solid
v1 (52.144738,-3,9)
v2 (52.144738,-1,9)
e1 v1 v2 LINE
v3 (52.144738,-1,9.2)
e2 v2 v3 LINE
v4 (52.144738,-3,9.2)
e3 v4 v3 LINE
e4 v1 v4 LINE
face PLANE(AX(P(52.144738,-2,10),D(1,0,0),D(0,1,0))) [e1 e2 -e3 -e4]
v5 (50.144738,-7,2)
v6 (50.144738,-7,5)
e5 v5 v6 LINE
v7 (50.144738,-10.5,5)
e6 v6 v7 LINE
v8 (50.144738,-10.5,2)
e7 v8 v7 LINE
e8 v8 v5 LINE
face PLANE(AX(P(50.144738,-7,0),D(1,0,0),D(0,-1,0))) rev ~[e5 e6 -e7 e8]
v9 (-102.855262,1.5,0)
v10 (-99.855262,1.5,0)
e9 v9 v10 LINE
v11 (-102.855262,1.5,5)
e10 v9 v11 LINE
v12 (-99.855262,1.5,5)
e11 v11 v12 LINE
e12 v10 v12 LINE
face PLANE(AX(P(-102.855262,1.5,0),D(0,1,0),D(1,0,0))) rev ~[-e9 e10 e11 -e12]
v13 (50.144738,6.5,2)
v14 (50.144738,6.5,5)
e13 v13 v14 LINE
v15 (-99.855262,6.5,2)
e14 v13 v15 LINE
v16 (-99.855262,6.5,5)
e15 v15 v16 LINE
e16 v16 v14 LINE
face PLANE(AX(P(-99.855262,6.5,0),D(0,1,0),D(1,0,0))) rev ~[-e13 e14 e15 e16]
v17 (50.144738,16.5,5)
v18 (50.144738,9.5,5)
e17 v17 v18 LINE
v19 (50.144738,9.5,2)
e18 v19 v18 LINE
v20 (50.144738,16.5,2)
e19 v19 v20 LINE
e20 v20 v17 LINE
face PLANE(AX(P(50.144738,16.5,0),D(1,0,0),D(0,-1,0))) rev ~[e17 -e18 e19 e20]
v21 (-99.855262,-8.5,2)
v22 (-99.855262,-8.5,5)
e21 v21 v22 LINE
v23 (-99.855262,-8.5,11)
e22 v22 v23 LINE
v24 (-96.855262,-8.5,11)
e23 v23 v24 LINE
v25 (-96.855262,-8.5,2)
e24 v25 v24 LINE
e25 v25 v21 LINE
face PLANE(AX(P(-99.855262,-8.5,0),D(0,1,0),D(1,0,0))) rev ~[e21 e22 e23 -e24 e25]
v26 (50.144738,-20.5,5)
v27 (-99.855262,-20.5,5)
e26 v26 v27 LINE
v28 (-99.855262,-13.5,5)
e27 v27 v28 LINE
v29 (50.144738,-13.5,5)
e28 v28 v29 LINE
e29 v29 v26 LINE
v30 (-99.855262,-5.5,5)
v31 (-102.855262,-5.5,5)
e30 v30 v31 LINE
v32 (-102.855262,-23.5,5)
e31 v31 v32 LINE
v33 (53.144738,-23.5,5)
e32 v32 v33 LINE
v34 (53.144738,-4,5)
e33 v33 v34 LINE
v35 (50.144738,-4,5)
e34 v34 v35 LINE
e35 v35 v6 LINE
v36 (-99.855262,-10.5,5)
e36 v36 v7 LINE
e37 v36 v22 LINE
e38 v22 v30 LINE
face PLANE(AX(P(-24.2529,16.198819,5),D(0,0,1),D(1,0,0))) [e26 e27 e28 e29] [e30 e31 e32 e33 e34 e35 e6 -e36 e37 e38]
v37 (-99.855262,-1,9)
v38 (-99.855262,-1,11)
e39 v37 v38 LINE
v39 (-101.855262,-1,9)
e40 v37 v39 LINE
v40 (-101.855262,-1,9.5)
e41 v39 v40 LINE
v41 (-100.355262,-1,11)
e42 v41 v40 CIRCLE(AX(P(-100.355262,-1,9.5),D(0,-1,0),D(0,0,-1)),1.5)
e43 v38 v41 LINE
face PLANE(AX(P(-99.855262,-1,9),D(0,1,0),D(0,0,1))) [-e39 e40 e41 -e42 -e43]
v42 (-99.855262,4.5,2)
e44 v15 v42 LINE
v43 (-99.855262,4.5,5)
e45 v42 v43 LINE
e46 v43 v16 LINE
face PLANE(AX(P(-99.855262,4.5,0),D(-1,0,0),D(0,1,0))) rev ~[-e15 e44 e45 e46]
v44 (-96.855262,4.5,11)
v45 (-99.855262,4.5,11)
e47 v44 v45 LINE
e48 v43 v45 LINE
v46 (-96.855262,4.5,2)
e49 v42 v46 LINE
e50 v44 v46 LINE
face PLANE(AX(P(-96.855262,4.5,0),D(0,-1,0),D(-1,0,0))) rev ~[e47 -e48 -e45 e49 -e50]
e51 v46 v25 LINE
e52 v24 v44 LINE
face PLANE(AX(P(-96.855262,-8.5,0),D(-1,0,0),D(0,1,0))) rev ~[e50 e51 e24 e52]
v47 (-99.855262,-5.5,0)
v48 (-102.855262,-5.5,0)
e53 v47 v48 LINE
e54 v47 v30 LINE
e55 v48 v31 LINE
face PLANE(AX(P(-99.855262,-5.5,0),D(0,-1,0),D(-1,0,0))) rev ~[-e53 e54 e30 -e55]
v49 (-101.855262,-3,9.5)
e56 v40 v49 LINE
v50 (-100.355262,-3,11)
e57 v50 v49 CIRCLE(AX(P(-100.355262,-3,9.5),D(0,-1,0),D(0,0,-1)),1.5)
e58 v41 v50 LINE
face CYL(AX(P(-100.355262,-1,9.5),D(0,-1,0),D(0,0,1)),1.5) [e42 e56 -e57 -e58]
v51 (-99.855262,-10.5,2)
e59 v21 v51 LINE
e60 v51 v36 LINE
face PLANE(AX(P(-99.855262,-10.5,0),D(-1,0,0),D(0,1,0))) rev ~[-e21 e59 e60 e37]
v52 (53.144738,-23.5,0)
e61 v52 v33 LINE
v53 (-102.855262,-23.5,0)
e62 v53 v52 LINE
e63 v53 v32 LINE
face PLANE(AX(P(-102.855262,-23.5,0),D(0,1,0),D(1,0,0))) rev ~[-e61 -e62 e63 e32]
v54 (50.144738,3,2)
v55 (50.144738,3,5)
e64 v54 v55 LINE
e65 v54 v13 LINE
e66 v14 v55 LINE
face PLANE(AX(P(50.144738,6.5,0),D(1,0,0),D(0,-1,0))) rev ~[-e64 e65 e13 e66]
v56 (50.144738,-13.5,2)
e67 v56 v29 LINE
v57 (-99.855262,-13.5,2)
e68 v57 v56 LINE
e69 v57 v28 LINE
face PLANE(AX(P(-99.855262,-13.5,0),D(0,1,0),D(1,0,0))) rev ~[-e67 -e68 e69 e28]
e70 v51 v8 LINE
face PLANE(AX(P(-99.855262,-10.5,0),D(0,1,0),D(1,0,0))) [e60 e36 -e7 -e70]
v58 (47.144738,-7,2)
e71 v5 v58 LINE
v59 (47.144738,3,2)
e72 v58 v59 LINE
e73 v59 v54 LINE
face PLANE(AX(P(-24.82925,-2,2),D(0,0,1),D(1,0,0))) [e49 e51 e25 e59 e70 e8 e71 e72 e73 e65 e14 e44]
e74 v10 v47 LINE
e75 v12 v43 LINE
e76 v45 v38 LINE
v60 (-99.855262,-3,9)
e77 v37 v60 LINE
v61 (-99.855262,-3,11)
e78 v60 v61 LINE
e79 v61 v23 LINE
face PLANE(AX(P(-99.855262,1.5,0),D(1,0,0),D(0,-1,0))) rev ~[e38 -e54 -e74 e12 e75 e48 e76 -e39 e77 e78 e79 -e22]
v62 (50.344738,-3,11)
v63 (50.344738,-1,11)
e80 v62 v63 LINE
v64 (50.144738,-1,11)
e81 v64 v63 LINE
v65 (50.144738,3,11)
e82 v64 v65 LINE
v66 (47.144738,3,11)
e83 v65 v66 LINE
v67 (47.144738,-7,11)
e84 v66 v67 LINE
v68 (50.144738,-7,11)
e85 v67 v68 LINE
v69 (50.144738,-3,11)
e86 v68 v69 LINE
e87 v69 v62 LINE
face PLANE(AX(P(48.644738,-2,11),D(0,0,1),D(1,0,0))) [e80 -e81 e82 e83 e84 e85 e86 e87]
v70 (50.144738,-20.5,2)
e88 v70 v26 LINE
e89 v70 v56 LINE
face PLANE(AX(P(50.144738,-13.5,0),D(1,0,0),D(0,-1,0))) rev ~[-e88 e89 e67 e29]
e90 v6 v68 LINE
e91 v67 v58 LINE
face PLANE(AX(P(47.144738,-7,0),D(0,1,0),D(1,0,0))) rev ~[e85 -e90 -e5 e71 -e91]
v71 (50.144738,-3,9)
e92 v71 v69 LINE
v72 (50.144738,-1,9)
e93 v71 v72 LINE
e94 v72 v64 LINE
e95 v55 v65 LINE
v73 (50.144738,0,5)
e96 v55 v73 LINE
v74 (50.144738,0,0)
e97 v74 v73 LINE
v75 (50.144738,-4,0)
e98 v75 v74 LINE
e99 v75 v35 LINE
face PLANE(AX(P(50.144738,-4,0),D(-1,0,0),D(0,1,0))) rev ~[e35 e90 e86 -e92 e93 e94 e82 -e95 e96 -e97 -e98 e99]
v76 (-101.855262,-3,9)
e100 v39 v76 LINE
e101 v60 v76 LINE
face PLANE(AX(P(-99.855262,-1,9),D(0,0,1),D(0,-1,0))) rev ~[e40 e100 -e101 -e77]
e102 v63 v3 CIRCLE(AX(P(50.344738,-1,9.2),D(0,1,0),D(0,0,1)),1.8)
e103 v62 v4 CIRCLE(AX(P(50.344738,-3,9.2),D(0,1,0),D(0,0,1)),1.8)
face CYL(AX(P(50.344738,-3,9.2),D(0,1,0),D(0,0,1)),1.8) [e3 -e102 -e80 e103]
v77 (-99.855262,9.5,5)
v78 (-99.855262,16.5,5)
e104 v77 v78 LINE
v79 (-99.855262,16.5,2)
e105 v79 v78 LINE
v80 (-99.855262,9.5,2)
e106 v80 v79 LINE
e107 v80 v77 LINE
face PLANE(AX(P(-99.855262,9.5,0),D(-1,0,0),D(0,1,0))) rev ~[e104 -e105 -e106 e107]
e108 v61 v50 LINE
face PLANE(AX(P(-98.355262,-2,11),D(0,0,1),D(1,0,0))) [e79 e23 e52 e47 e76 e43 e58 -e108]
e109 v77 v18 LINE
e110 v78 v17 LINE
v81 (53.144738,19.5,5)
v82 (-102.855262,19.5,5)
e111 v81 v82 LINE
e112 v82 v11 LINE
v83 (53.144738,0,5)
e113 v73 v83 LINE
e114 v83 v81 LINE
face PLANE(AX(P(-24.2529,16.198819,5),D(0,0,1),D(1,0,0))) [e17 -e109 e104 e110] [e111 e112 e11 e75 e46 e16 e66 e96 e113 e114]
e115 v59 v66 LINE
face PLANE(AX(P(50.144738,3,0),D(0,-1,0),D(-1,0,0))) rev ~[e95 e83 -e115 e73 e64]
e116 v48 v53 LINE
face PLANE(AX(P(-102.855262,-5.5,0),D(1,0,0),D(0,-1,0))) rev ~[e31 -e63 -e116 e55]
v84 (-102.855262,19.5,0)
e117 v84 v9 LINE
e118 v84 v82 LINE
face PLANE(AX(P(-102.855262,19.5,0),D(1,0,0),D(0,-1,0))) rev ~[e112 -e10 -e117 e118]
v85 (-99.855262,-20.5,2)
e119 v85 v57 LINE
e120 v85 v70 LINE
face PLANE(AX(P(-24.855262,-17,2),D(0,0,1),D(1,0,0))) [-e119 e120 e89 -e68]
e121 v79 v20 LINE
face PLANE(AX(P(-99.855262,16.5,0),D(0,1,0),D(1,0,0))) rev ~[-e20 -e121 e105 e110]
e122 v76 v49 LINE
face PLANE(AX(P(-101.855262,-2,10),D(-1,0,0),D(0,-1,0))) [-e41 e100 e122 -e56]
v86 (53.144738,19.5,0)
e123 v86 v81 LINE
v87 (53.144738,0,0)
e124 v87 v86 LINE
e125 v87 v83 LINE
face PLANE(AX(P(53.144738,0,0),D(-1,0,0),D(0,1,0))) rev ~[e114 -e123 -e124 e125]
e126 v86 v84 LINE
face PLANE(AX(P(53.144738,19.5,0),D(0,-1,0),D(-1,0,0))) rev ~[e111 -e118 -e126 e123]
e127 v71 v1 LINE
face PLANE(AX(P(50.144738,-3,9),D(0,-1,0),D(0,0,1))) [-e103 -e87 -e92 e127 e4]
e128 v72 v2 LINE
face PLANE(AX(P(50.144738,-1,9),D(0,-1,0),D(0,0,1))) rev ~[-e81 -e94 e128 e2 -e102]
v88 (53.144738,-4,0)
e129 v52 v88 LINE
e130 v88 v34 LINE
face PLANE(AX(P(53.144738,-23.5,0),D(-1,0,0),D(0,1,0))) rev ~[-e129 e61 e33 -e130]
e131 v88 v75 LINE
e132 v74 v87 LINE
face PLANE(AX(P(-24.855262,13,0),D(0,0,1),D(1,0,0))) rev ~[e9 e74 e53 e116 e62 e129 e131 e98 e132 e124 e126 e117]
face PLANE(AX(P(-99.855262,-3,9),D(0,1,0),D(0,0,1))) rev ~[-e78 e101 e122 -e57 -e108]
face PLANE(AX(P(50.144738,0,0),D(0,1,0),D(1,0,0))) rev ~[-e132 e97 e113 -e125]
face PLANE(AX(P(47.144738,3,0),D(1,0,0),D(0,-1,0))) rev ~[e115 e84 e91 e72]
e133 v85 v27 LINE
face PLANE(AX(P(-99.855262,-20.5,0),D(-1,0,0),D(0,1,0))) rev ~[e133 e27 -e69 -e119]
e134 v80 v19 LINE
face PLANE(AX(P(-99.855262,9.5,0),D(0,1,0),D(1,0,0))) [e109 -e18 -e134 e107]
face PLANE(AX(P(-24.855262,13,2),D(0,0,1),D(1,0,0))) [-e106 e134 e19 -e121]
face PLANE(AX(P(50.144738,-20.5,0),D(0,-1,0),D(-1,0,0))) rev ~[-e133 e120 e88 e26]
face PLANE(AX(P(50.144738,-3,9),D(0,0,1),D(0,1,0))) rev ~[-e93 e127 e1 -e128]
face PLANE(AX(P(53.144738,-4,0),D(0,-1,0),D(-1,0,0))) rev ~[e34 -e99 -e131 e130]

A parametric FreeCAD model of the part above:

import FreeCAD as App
import Part
import Sketcher
from FreeCAD import Vector
Q = App.Units.Quantity


def edges_at(feature, points):
    """Names of the edges that pass closest to the given points."""
    edges = feature.Shape.Edges
    near = lambda p: min(range(len(edges)), key=lambda i: edges[i].distToShape(Part.Vertex(*p))[0])
    return sorted({f"Edge{near(p) + 1}" for p in points})


def add_polygon(sketch, points):
    """Adds a closed chain of lines whose ends are joined by coincident constraints."""
    first, n = sketch.GeometryCount, len(points)
    for a, b in zip(points, points[1:] + points[:1]):
        sketch.addGeometry(Part.LineSegment(App.Vector(*a, 0), App.Vector(*b, 0)), False)
    for i in range(n):
        sketch.addConstraint(Sketcher.Constraint("Coincident", first + i, 2, first + (i + 1) % n, 1))

doc = App.newDocument("Part")
body = doc.addObject("PartDesign::Body", "Body")

# Sketch on XY plane
sketch1 = body.newObject("Sketcher::SketchObject", "Sketch")
sketch1.AttachmentSupport = (doc.getObject("XY_Plane"), [""])
sketch1.MapMode = "FlatFace"
add_polygon(sketch1, [(53.1, 19.5), (-102.9, 19.5), (-102.9, 1.5), (-99.9, 1.5), (-99.9, -5.5), (-102.9, -5.5), (-102.9, -23.5), (53.1, -23.5), (53.1, -4), (50.1, -4), (50.1, 0), (53.1, 0)])  # lines 0-11
add_polygon(sketch1, [(50.1, -7), (50.1, -10.5), (-99.9, -10.5), (-99.9, -8.5), (-96.9, -8.5), (-96.9, 4.5), (-99.9, 4.5), (-99.9, 6.5), (50.1, 6.5), (50.1, 3), (47.1, 3), (47.1, -7)])  # lines 12-23
add_polygon(sketch1, [(-99.9, 9.5), (-99.9, 16.5), (50.1, 16.5), (50.1, 9.5)])  # lines 24-27
add_polygon(sketch1, [(50.1, -13.5), (50.1, -20.5), (-99.9, -20.5), (-99.9, -13.5)])  # lines 28-31
sketch1.addConstraint([
    Sketcher.Constraint("Horizontal", 0),
    Sketcher.Constraint("Vertical", 1),
    Sketcher.Constraint("Horizontal", 2),
    Sketcher.Constraint("Vertical", 3),
    Sketcher.Constraint("Horizontal", 4),
    Sketcher.Constraint("Vertical", 5),
    Sketcher.Constraint("Horizontal", 6),
    Sketcher.Constraint("Vertical", 7),
    Sketcher.Constraint("Horizontal", 8),
    Sketcher.Constraint("Vertical", 9),
    Sketcher.Constraint("Horizontal", 10),
    Sketcher.Constraint("Vertical", 11),
    Sketcher.Constraint("Vertical", 12),
    Sketcher.Constraint("Horizontal", 13),
    Sketcher.Constraint("Vertical", 14),
    Sketcher.Constraint("Horizontal", 15),
    Sketcher.Constraint("Vertical", 16),
    Sketcher.Constraint("Horizontal", 17),
    Sketcher.Constraint("Vertical", 18),
    Sketcher.Constraint("Horizontal", 19),
    Sketcher.Constraint("Vertical", 20),
    Sketcher.Constraint("Horizontal", 21),
    Sketcher.Constraint("Vertical", 22),
    Sketcher.Constraint("Horizontal", 23),
    Sketcher.Constraint("Vertical", 24),
    Sketcher.Constraint("Horizontal", 25),
    Sketcher.Constraint("Vertical", 26),
    Sketcher.Constraint("Horizontal", 27),
    Sketcher.Constraint("Vertical", 28),
    Sketcher.Constraint("Horizontal", 29),
    Sketcher.Constraint("Vertical", 30),
    Sketcher.Constraint("Horizontal", 31),
    Sketcher.Constraint("PointOnObject", 9, 2, -1),
    Sketcher.Constraint("Vertical", 1, 2, 4, 2),
    Sketcher.Constraint("Vertical", 7, 2, 10, 2),
    Sketcher.Constraint("Vertical", 9, 2, 12, 2),
    Sketcher.Constraint("Vertical", 3, 2, 13, 2),
    Sketcher.Constraint("Vertical", 14, 2, 17, 2),
    Sketcher.Constraint("Vertical", 12, 2, 19, 2),
    Sketcher.Constraint("Vertical", 18, 2, 24, 2),
    Sketcher.Constraint("Vertical", 23, 2, 25, 2),
    Sketcher.Constraint("Vertical", 26, 2, 28, 2),
    Sketcher.Constraint("Vertical", 27, 2, 29, 2),
    Sketcher.Constraint("Equal", 4, 8),
    Sketcher.Constraint("Equal", 10, 15),
    Sketcher.Constraint("Equal", 17, 21),
    Sketcher.Constraint("Equal", 1, 5),
    Sketcher.Constraint("Equal", 7, 11),
    Sketcher.Constraint("Equal", 14, 18),
    Sketcher.Constraint("Equal", 12, 20),
    Sketcher.Constraint("Equal", 3, 24),
    Sketcher.Constraint("Equal", 26, 28),
    Sketcher.Constraint("DistanceX", 0, 2, 0, 1, Q("156 mm")),
    Sketcher.Constraint("DistanceX", 2, 1, 2, 2, Q("3 mm")),
    Sketcher.Constraint("DistanceY", 1, 2, 1, 1, Q("18 mm")),
    Sketcher.Constraint("DistanceY", 3, 2, 3, 1, Q("7 mm")),
    Sketcher.Constraint("DistanceY", 9, 1, 9, 2, Q("4 mm")),
    Sketcher.Constraint("DistanceY", 14, 1, 14, 2, Q("2 mm")),
    Sketcher.Constraint("DistanceY", 16, 1, 16, 2, Q("13 mm")),
    Sketcher.Constraint("DistanceY", 22, 2, 22, 1, Q("10 mm")),
    Sketcher.Constraint("DistanceY", -1, 1, 20, 2, Q("3 mm")),
    Sketcher.Constraint("DistanceY", 24, 2, 0, 2, Q("3 mm")),
    Sketcher.Constraint("DistanceY", 6, 2, 28, 2, Q("3 mm")),
    Sketcher.Constraint("DistanceX", 0, 2, -1, 1, Q("102.855262 mm")),
])
pad1 = body.newObject("PartDesign::Pad", "Pad")
pad1.Profile = sketch1
pad1.Length = 5

# Sketch on XY plane
sketch2 = body.newObject("Sketcher::SketchObject", "Sketch001")
sketch2.AttachmentSupport = (doc.getObject("XY_Plane"), [""])
sketch2.MapMode = "FlatFace"
add_polygon(sketch2, [(-99.9, 16.5), (-99.9, 9.5), (50.1, 9.5), (50.1, 16.5)])  # lines 0-3
add_polygon(sketch2, [(-99.9, 6.5), (-99.9, 4.5), (-96.9, 4.5), (-96.9, -8.5), (-99.9, -8.5), (-99.9, -10.5), (50.1, -10.5), (50.1, -7), (47.1, -7), (47.1, 3), (50.1, 3), (50.1, 6.5)])  # lines 4-15
add_polygon(sketch2, [(-99.9, -13.5), (-99.9, -20.5), (50.1, -20.5), (50.1, -13.5)])  # lines 16-19
sketch2.addConstraint([
    Sketcher.Constraint("Vertical", 0),
    Sketcher.Constraint("Horizontal", 1),
    Sketcher.Constraint("Vertical", 2),
    Sketcher.Constraint("Horizontal", 3),
    Sketcher.Constraint("Vertical", 4),
    Sketcher.Constraint("Horizontal", 5),
    Sketcher.Constraint("Vertical", 6),
    Sketcher.Constraint("Horizontal", 7),
    Sketcher.Constraint("Vertical", 8),
    Sketcher.Constraint("Horizontal", 9),
    Sketcher.Constraint("Vertical", 10),
    Sketcher.Constraint("Horizontal", 11),
    Sketcher.Constraint("Vertical", 12),
    Sketcher.Constraint("Horizontal", 13),
    Sketcher.Constraint("Vertical", 14),
    Sketcher.Constraint("Horizontal", 15),
    Sketcher.Constraint("Vertical", 16),
    Sketcher.Constraint("Horizontal", 17),
    Sketcher.Constraint("Vertical", 18),
    Sketcher.Constraint("Horizontal", 19),
    Sketcher.Constraint("Vertical", 3, 2, 4, 2),
    Sketcher.Constraint("Vertical", 4, 2, 7, 2),
    Sketcher.Constraint("Vertical", 2, 2, 9, 2),
    Sketcher.Constraint("Vertical", 10, 2, 13, 2),
    Sketcher.Constraint("Vertical", 15, 2, 16, 2),
    Sketcher.Constraint("Vertical", 14, 2, 17, 2),
    Sketcher.Constraint("Equal", 7, 11),
    Sketcher.Constraint("Equal", 4, 8),
    Sketcher.Constraint("Equal", 10, 14),
    Sketcher.Constraint("Equal", 2, 16),
    Sketcher.Constraint("DistanceX", 1, 1, 1, 2, Q("150 mm")),
    Sketcher.Constraint("DistanceX", 5, 1, 5, 2, Q("3 mm")),
    Sketcher.Constraint("DistanceY", 0, 2, 0, 1, Q("7 mm")),
    Sketcher.Constraint("DistanceY", 4, 2, 4, 1, Q("2 mm")),
    Sketcher.Constraint("DistanceY", 6, 2, 6, 1, Q("13 mm")),
    Sketcher.Constraint("DistanceY", 12, 1, 12, 2, Q("10 mm")),
    Sketcher.Constraint("DistanceY", 10, 2, -1, 1, Q("7 mm")),
    Sketcher.Constraint("DistanceY", 4, 2, 0, 2, Q("5 mm")),
    Sketcher.Constraint("DistanceY", 16, 2, 8, 2, Q("10 mm")),
    Sketcher.Constraint("DistanceX", 0, 2, -1, 1, Q("99.855262 mm")),
])
pad2 = body.newObject("PartDesign::Pad", "Pad001")
pad2.Profile = sketch2
pad2.Length = 2
body2 = doc.addObject("PartDesign::Body", "Body001")

# Sketch on XY plane
sketch3 = body2.newObject("Sketcher::SketchObject", "Sketch002")
sketch3.AttachmentSupport = (doc.getObject("XY_Plane001"), [""])
sketch3.MapMode = "FlatFace"
add_polygon(sketch3, [(-99.9, 4.5), (-99.9, -8.5), (-96.9, -8.5), (-96.9, 4.5)])  # lines 0-3
sketch3.addConstraint([
    Sketcher.Constraint("Vertical", 0),
    Sketcher.Constraint("Horizontal", 1),
    Sketcher.Constraint("Vertical", 2),
    Sketcher.Constraint("Horizontal", 3),
    Sketcher.Constraint("DistanceX", 1, 1, 1, 2, Q("3 mm")),
    Sketcher.Constraint("DistanceY", 0, 2, 0, 1, Q("13 mm")),
    Sketcher.Constraint("DistanceY", 0, 2, -1, 1, Q("8.5 mm")),
    Sketcher.Constraint("DistanceX", 0, 2, -1, 1, Q("99.855262 mm")),
])
pad3 = body2.newObject("PartDesign::Pad", "Pad002")
pad3.Profile = sketch3
pad3.Length = 11
body3 = doc.addObject("PartDesign::Body", "Body002")

# Sketch on XY plane
sketch4 = body3.newObject("Sketcher::SketchObject", "Sketch003")
sketch4.AttachmentSupport = (doc.getObject("XY_Plane002"), [""])
sketch4.MapMode = "FlatFace"
add_polygon(sketch4, [(50.1, 3), (47.1, 3), (47.1, -7), (50.1, -7)])  # lines 0-3
sketch4.addConstraint([
    Sketcher.Constraint("Horizontal", 0),
    Sketcher.Constraint("Vertical", 1),
    Sketcher.Constraint("Horizontal", 2),
    Sketcher.Constraint("Vertical", 3),
    Sketcher.Constraint("DistanceX", 0, 2, 0, 1, Q("3 mm")),
    Sketcher.Constraint("DistanceY", 1, 2, 1, 1, Q("10 mm")),
    Sketcher.Constraint("DistanceY", -1, 1, 0, 2, Q("3 mm")),
    Sketcher.Constraint("DistanceX", -1, 1, 0, 2, Q("47.144738 mm")),
])
pad4 = body3.newObject("PartDesign::Pad", "Pad003")
pad4.Profile = sketch4
pad4.Length = 11
doc.recompute()

boolean = body.newObject("PartDesign::Boolean", "Boolean")
boolean.Type = "Fuse"
boolean.addObjects([body3])
doc.recompute()

boolean2 = body.newObject("PartDesign::Boolean", "Boolean001")
boolean2.Type = "Fuse"
boolean2.addObjects([body2])

# Sketch on YZ plane
sketch5 = body.newObject("Sketcher::SketchObject", "Sketch004")
sketch5.AttachmentSupport = (doc.getObject("YZ_Plane"), [""])
sketch5.MapMode = "FlatFace"
sketch5.AttachmentOffset = App.Placement(Vector(0, 0, -99.855262), App.Rotation())
add_polygon(sketch5, [(-1, 11), (-1, 9), (-3, 9), (-3, 11)])  # lines 0-3
sketch5.addConstraint([
    Sketcher.Constraint("Vertical", 0),
    Sketcher.Constraint("Horizontal", 1),
    Sketcher.Constraint("Vertical", 2),
    Sketcher.Constraint("Horizontal", 3),
    Sketcher.Constraint("Equal", 3, 0),
    Sketcher.Constraint("DistanceX", 1, 2, 1, 1, Q("2 mm")),
    Sketcher.Constraint("DistanceX", 0, 2, -1, 1, Q("1 mm")),
    Sketcher.Constraint("DistanceY", -1, 1, 0, 2, Q("9 mm")),
])
pad5 = body.newObject("PartDesign::Pad", "Pad004")
pad5.Profile = sketch5
pad5.Length = 2
pad5.Reversed = True
doc.recompute()

fillet = body.newObject("PartDesign::Fillet", "Fillet")
fillet.Base = (pad5, edges_at(pad5, [(-101.855, -2, 11)]))
fillet.Radius = 1.5

# Sketch on YZ plane
sketch6 = body.newObject("Sketcher::SketchObject", "Sketch005")
sketch6.AttachmentSupport = (doc.getObject("YZ_Plane"), [""])
sketch6.MapMode = "FlatFace"
sketch6.AttachmentOffset = App.Placement(Vector(0, 0, 50.144738), App.Rotation())
add_polygon(sketch6, [(-3, 11), (-3, 9), (-1, 9), (-1, 11)])  # lines 0-3
sketch6.addConstraint([
    Sketcher.Constraint("Vertical", 0),
    Sketcher.Constraint("Horizontal", 1),
    Sketcher.Constraint("Vertical", 2),
    Sketcher.Constraint("Horizontal", 3),
    Sketcher.Constraint("Equal", 3, 0),
    Sketcher.Constraint("DistanceX", 1, 1, 1, 2, Q("2 mm")),
    Sketcher.Constraint("DistanceX", 0, 2, -1, 1, Q("3 mm")),
    Sketcher.Constraint("DistanceY", -1, 1, 0, 2, Q("9 mm")),
])
pad6 = body.newObject("PartDesign::Pad", "Pad005")
pad6.Profile = sketch6
pad6.Length = 2
doc.recompute()

fillet2 = body.newObject("PartDesign::Fillet", "Fillet001")
fillet2.Base = (pad6, edges_at(pad6, [(52.145, -2, 11)]))
fillet2.Radius = 1.8

doc.recompute()
